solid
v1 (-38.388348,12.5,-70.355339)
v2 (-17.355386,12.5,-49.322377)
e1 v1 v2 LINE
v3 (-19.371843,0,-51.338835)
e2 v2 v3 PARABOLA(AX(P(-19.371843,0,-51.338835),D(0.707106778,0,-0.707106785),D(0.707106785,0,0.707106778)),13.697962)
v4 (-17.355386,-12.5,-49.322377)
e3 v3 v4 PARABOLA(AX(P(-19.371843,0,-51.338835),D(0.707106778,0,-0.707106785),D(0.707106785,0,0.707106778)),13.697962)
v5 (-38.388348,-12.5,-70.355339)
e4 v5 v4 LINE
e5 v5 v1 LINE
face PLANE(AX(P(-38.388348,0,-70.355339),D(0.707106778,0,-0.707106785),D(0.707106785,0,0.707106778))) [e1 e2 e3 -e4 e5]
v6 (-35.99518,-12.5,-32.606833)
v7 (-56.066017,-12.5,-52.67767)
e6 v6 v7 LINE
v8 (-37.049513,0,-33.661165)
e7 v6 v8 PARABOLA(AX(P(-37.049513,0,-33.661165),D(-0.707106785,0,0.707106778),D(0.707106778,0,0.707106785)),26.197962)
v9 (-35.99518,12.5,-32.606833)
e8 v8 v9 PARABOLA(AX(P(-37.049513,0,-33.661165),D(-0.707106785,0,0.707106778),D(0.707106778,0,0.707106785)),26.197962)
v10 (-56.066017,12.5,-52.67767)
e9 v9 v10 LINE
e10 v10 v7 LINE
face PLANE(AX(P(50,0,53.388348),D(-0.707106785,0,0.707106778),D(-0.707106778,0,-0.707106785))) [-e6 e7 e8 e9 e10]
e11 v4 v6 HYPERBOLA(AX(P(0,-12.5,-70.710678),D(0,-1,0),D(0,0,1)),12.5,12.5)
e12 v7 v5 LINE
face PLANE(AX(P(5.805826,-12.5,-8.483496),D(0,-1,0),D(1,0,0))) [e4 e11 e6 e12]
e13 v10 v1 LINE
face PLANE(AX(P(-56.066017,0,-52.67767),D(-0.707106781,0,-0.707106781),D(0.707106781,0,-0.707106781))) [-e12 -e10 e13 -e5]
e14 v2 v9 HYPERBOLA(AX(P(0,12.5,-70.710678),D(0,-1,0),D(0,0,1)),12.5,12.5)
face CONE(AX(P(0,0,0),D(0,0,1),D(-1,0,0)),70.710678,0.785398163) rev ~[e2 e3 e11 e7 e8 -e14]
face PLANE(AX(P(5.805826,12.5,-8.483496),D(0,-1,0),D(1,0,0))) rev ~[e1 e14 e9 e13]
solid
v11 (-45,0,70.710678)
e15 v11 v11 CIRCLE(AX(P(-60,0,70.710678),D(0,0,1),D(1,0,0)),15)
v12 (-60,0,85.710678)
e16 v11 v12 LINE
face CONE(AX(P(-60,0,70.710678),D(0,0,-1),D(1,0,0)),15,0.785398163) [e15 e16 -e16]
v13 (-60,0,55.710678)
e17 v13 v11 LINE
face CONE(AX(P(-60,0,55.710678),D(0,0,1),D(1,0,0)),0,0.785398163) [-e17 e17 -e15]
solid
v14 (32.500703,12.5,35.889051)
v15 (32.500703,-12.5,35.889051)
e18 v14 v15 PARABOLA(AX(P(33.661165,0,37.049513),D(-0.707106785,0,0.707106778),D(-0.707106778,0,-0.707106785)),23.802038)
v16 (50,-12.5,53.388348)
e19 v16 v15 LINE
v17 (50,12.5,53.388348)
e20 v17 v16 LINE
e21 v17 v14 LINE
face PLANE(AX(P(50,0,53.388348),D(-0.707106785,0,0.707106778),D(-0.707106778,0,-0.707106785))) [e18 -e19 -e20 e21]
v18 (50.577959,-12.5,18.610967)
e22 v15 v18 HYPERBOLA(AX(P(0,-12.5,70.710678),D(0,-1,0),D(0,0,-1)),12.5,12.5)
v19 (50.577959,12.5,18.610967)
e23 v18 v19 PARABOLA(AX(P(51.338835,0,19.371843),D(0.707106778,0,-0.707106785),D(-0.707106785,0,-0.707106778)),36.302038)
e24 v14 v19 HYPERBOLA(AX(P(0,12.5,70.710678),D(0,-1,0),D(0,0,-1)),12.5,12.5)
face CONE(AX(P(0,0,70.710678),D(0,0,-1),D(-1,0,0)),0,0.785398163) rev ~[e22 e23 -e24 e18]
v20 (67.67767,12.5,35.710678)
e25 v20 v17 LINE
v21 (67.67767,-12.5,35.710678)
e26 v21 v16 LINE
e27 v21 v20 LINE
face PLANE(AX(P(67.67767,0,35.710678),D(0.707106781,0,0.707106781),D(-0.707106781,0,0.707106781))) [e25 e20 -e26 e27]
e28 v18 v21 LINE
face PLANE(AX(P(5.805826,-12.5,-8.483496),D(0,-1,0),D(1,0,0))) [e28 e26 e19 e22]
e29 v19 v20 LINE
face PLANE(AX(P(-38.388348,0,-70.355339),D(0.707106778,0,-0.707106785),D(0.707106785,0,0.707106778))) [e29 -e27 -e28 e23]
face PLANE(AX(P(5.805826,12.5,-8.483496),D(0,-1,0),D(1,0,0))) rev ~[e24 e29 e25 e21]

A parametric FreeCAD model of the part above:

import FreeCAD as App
import Part
import Sketcher

V = App.Vector
Q = App.Units.Quantity


def add_polygon(sketch, points):
    """Adds a closed chain of lines whose ends are joined by coincident constraints."""
    first, n = sketch.GeometryCount, len(points)
    for a, b in zip(points, points[1:] + points[:1]):
        sketch.addGeometry(Part.LineSegment(App.Vector(*a, 0), App.Vector(*b, 0)), False)
    for i in range(n):
        sketch.addConstraint(Sketcher.Constraint("Coincident", first + i, 2, first + (i + 1) % n, 1))

doc = App.newDocument("Part")
body = doc.addObject("PartDesign::Body", "Body")

# Sketch on XZ plane
sketch1 = body.newObject("Sketcher::SketchObject", "Sketch")
sketch1.AttachmentSupport = (doc.getObject("XZ_Plane"), [""])
sketch1.MapMode = "FlatFace"
add_polygon(sketch1, [(0, -70.710678), (0, 70.710678), (-70.710678, 0)])  # lines 0-2
sketch1.addConstraint(Sketcher.Constraint("Vertical", 0))
sketch1.addConstraint(Sketcher.Constraint("Symmetric", 0, 2, 2, 2, -1, 1))
sketch1.addConstraint(Sketcher.Constraint("PointOnObject", 1, 2, -1))
sketch1.addConstraint(Sketcher.Constraint("Perpendicular", 1, 2))
sketch1.addConstraint(Sketcher.Constraint("Distance", 1, Q("100 mm")))
revolution = body.newObject("PartDesign::Revolution", "Revolution")
revolution.Profile = sketch1
revolution.ReferenceAxis = (sketch1, ["V_Axis"])
revolution.Angle = 360
body2 = doc.addObject("PartDesign::Body", "Body001")

# Sketch on XZ plane
sketch2 = body2.newObject("Sketcher::SketchObject", "Sketch001")
sketch2.AttachmentSupport = (doc.getObject("XZ_Plane001"), [""])
sketch2.MapMode = "FlatFace"
add_polygon(sketch2, [(-60, 55.710678), (-45, 70.710678), (-60, 85.710678)])  # lines 0-2
sketch2.addGeometry(Part.LineSegment(V(-60, 55.710678, 0), V(-60, 85.710678, 0)), True)  # axis
sketch2.addConstraint(Sketcher.Constraint("Vertical", 2))
sketch2.addConstraint(Sketcher.Constraint("Vertical", 3))
sketch2.addConstraint(Sketcher.Constraint("Coincident", 3, 1, 2, 2))
sketch2.addConstraint(Sketcher.Constraint("Perpendicular", 0, 1))
sketch2.addConstraint(Sketcher.Constraint("Equal", 2, 3))
sketch2.addConstraint(Sketcher.Constraint("Equal", 0, 1))
sketch2.addConstraint(Sketcher.Constraint("DistanceY", 2, 2, 2, 1, Q("30 mm")))
sketch2.addConstraint(Sketcher.Constraint("DistanceX", 0, 2, -1, 1, Q("45 mm")))
sketch2.addConstraint(Sketcher.Constraint("DistanceY", -1, 1, 0, 2, Q("70.710678 mm")))
revolution2 = body2.newObject("PartDesign::Revolution", "Revolution001")
revolution2.Profile = sketch2
revolution2.ReferenceAxis = (sketch2, ["Axis0"])
revolution2.Angle = 360
body3 = doc.addObject("PartDesign::Body", "Body002")
body3.AllowCompound = True

# Sketch on XZ plane
sketch3 = body3.newObject("Sketcher::SketchObject", "Sketch002")
sketch3.AttachmentSupport = (doc.getObject("XZ_Plane002"), [""])
sketch3.MapMode = "FlatFace"
add_polygon(sketch3, [(67.67767, 35.710678), (50, 53.388348), (-56.066017, -52.67767), (-38.388348, -70.355339)])  # lines 0-3
sketch3.addConstraint(Sketcher.Constraint("Perpendicular", 0, 1))
sketch3.addConstraint(Sketcher.Constraint("Perpendicular", 1, 2))
sketch3.addConstraint(Sketcher.Constraint("Perpendicular", 2, 3))
sketch3.addConstraint(Sketcher.Constraint("Angle", 0, Q("135 deg")))
sketch3.addConstraint(Sketcher.Constraint("Distance", 0, Q("25.000001 mm")))
sketch3.addConstraint(Sketcher.Constraint("Distance", 1, Q("150 mm")))
sketch3.addConstraint(Sketcher.Constraint("DistanceX", -1, 1, 0, 2, Q("50 mm")))
sketch3.addConstraint(Sketcher.Constraint("DistanceY", 1, 2, -1, 1, Q("52.67767 mm")))
pad1 = body3.newObject("PartDesign::Pad", "Pad")
pad1.Profile = sketch3
pad1.Length = 25
pad1.Midplane = True
doc.recompute()

boolean = body3.newObject("PartDesign::Boolean", "Boolean")
boolean.Type = "Cut"
boolean.addObjects([body])

doc.recompute()
